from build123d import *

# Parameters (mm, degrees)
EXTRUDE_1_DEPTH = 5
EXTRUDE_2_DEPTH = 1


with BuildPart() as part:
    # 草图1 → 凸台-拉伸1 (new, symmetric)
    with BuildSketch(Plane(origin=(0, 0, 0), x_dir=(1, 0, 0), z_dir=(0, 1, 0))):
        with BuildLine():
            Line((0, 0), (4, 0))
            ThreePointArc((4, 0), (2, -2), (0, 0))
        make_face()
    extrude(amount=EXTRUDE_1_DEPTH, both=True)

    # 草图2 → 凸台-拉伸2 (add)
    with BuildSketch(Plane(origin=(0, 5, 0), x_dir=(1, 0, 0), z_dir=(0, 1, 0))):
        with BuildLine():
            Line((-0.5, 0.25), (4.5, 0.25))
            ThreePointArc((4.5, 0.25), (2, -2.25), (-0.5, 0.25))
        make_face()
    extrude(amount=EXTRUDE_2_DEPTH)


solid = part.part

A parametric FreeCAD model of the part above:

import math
import FreeCAD as App
import Part
import Sketcher
from FreeCAD import Vector

doc = App.newDocument("Part")
body = doc.addObject("PartDesign::Body", "Body")

# Sketch on XZ plane
sketch1 = body.newObject("Sketcher::SketchObject", "Sketch")
sketch1.AttachmentSupport = (doc.getObject("XZ_Plane"), [""])
sketch1.MapMode = "FlatFace"
sketch1.addGeometry([
    Part.LineSegment(Vector(4, 0, 0), Vector(0, 0, 0)),
    Part.ArcOfCircle(Part.Circle(Vector(2, 0, 0), Vector(0, 0, 1), 2), math.radians(0), math.radians(180)),
], False)
sketch1.addConstraint([
    Sketcher.Constraint("Coincident", 0, 1, 1, 1),
    Sketcher.Constraint("Coincident", 1, 2, 0, 2),
    Sketcher.Constraint("Horizontal", 0),
    Sketcher.Constraint("Coincident", 1, 2, -1, 1),
    Sketcher.Constraint("PointOnObject", 1, 3, -1),
    Sketcher.Constraint("Radius", 1, 2.0),
])
pad1 = body.newObject("PartDesign::Pad", "Pad")
pad1.Profile = sketch1
pad1.Length = 10
pad1.Midplane = True

# Sketch on XZ plane
sketch2 = body.newObject("Sketcher::SketchObject", "Sketch001")
sketch2.AttachmentSupport = (doc.getObject("XZ_Plane"), [""])
sketch2.MapMode = "FlatFace"
sketch2.AttachmentOffset = App.Placement(Vector(0, 0, -5), App.Rotation())
sketch2.addGeometry([
    Part.LineSegment(Vector(4.5, -0.2, 0), Vector(-0.5, -0.2, 0)),
    Part.ArcOfCircle(Part.Circle(Vector(2, -0.2, 0), Vector(0, 0, 1), 2.5), math.radians(0), math.radians(180)),
], False)
sketch2.addConstraint([
    Sketcher.Constraint("Coincident", 0, 1, 1, 1),
    Sketcher.Constraint("Coincident", 1, 2, 0, 2),
    Sketcher.Constraint("Horizontal", 0),
    Sketcher.Constraint("Horizontal", 1, 3, 0, 1),
    Sketcher.Constraint("Radius", 1, 2.5),
    Sketcher.Constraint("DistanceX", -1, 1, 1, 3, 2.0),
    Sketcher.Constraint("DistanceY", 1, 3, -1, 1, 0.25),
])
pad2 = body.newObject("PartDesign::Pad", "Pad001")
pad2.Profile = sketch2
pad2.Length = 1
pad2.Reversed = True

doc.recompute()
